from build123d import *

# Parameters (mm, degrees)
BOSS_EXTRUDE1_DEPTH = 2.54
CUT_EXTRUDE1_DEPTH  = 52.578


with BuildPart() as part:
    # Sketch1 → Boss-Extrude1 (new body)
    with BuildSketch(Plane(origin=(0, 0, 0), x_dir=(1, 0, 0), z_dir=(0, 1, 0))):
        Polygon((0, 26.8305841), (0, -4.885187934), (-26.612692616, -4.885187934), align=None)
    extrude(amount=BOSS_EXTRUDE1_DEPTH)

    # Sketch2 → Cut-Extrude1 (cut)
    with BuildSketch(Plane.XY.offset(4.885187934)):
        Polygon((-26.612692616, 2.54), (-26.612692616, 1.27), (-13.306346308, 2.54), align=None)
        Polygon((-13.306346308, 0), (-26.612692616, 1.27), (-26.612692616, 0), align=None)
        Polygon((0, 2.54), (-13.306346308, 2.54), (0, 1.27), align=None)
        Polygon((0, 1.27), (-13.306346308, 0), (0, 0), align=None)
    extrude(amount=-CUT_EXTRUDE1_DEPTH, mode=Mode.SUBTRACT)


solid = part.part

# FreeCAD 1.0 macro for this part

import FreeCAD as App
import Part
import Sketcher
Q = App.Units.Quantity

doc = App.newDocument("Part")
params = doc.addObject("Spreadsheet::Sheet", "Params")
for row, (alias, value) in enumerate([
    ("sketch1_length", "1.63 in"),
    ("pad1_length", "0.1 in"),
    ("sketch2_height", "0.05 in"),
    ("pocket1_length", "2.07 in"),
], start=1):
    params.set(f"A{row}", alias)
    params.set(f"B{row}", "=" + value)
    params.setAlias(f"B{row}", alias)

body = doc.addObject("PartDesign::Body", "Body")

# Sketch on XZ plane
sketch1 = body.newObject("Sketcher::SketchObject", "Sketch")
sketch1.AttachmentSupport = (doc.getObject("XZ_Plane"), [""])
sketch1.MapMode = "FlatFace"
sketch1.addGeometry([
    Part.LineSegment(App.Vector(0, 5, 0), App.Vector(0, -27, 0)),
    Part.LineSegment(App.Vector(0, -27, 0), App.Vector(-27, 5, 0)),
    Part.LineSegment(App.Vector(-27, 5, 0), App.Vector(0, 5, 0)),
], False)
sketch1.addConstraint([
    Sketcher.Constraint("Coincident", 0, 2, 1, 1),
    Sketcher.Constraint("Coincident", 1, 2, 2, 1),
    Sketcher.Constraint("Coincident", 2, 2, 0, 1),
    Sketcher.Constraint("Vertical", 0),
    Sketcher.Constraint("Horizontal", 2),
    Sketcher.Constraint("PointOnObject", 0, 2, -2),
    Sketcher.Constraint("Angle", 1, Q("130 deg")),
    Sketcher.Constraint("Distance", 1, Q("1.63 in")),
    Sketcher.Constraint("DistanceY", 0, 2, -1, 1, 26.830584),
])
sketch1.setExpression("Constraints[7]", "Params.sketch1_length")
pad1 = body.newObject("PartDesign::Pad", "Pad")
pad1.Profile = sketch1
pad1.setExpression("Length", "Params.pad1_length")
pad1.Reversed = True

# Sketch on XY plane
sketch2 = body.newObject("Sketcher::SketchObject", "Sketch001")
sketch2.AttachmentSupport = (doc.getObject("XY_Plane"), [""])
sketch2.MapMode = "FlatFace"
sketch2.AttachmentOffset = App.Placement(App.Vector(0, 0, 4.885188), App.Rotation())
sketch2.addGeometry([
    Part.LineSegment(App.Vector(-26.6, 2.5, 0), App.Vector(-26.6, 1.3, 0)),  # 0
    Part.LineSegment(App.Vector(-26.6, 1.3, 0), App.Vector(-13.3, 2.5, 0)),  # 1
    Part.LineSegment(App.Vector(-13.3, 2.5, 0), App.Vector(-26.6, 2.5, 0)),  # 2
    Part.LineSegment(App.Vector(-13.3, 0, 0), App.Vector(-26.6, 1.3, 0)),  # 3
    Part.LineSegment(App.Vector(-26.6, 1.3, 0), App.Vector(-26.6, 0, 0)),  # 4
    Part.LineSegment(App.Vector(-26.6, 0, 0), App.Vector(-13.3, 0, 0)),  # 5
    Part.LineSegment(App.Vector(0, 2.5, 0), App.Vector(-13.3, 2.5, 0)),  # 6
    Part.LineSegment(App.Vector(-13.3, 2.5, 0), App.Vector(0, 1.3, 0)),  # 7
    Part.LineSegment(App.Vector(0, 1.3, 0), App.Vector(0, 2.5, 0)),  # 8
    Part.LineSegment(App.Vector(0, 1.3, 0), App.Vector(-13.3, 0, 0)),  # 9
    Part.LineSegment(App.Vector(-13.3, 0, 0), App.Vector(0, 0, 0)),  # 10
    Part.LineSegment(App.Vector(0, 0, 0), App.Vector(0, 1.3, 0)),  # 11
], False)
sketch2.addConstraint([
    Sketcher.Constraint("Coincident", 0, 2, 1, 1),
    Sketcher.Constraint("Coincident", 1, 2, 2, 1),
    Sketcher.Constraint("Coincident", 2, 2, 0, 1),
    Sketcher.Constraint("Coincident", 3, 2, 4, 1),
    Sketcher.Constraint("Coincident", 4, 2, 5, 1),
    Sketcher.Constraint("Coincident", 5, 2, 3, 1),
    Sketcher.Constraint("Coincident", 6, 2, 7, 1),
    Sketcher.Constraint("Coincident", 7, 2, 8, 1),
    Sketcher.Constraint("Coincident", 8, 2, 6, 1),
    Sketcher.Constraint("Coincident", 9, 2, 10, 1),
    Sketcher.Constraint("Coincident", 10, 2, 11, 1),
    Sketcher.Constraint("Coincident", 11, 2, 9, 1),
    Sketcher.Constraint("Vertical", 0),
    Sketcher.Constraint("Horizontal", 2),
    Sketcher.Constraint("Vertical", 4),
    Sketcher.Constraint("Horizontal", 5),
    Sketcher.Constraint("Horizontal", 6),
    Sketcher.Constraint("Vertical", 8),
    Sketcher.Constraint("Horizontal", 10),
    Sketcher.Constraint("Vertical", 11),
    Sketcher.Constraint("Coincident", 10, 2, -1, 1),
    Sketcher.Constraint("Coincident", 3, 2, 0, 2),
    Sketcher.Constraint("Coincident", 6, 2, 1, 2),
    Sketcher.Constraint("Coincident", 9, 2, 5, 2),
    Sketcher.Constraint("Coincident", 11, 2, 7, 2),
    Sketcher.Constraint("Parallel", 3, 7),
    Sketcher.Constraint("Parallel", 1, 9),
    Sketcher.Constraint("Horizontal", 3, 2, 7, 2),
    Sketcher.Constraint("Vertical", 1, 2, 5, 2),
    Sketcher.Constraint("DistanceY", 0, 2, 0, 1, Q("0.05 in")),
    Sketcher.Constraint("DistanceX", 2, 2, 2, 1, 13.306346),
])
sketch2.setExpression("Constraints[29]", "Params.sketch2_height")
pocket1 = body.newObject("PartDesign::Pocket", "Pocket")
pocket1.Profile = sketch2
pocket1.setExpression("Length", "Params.pocket1_length")

doc.recompute()
